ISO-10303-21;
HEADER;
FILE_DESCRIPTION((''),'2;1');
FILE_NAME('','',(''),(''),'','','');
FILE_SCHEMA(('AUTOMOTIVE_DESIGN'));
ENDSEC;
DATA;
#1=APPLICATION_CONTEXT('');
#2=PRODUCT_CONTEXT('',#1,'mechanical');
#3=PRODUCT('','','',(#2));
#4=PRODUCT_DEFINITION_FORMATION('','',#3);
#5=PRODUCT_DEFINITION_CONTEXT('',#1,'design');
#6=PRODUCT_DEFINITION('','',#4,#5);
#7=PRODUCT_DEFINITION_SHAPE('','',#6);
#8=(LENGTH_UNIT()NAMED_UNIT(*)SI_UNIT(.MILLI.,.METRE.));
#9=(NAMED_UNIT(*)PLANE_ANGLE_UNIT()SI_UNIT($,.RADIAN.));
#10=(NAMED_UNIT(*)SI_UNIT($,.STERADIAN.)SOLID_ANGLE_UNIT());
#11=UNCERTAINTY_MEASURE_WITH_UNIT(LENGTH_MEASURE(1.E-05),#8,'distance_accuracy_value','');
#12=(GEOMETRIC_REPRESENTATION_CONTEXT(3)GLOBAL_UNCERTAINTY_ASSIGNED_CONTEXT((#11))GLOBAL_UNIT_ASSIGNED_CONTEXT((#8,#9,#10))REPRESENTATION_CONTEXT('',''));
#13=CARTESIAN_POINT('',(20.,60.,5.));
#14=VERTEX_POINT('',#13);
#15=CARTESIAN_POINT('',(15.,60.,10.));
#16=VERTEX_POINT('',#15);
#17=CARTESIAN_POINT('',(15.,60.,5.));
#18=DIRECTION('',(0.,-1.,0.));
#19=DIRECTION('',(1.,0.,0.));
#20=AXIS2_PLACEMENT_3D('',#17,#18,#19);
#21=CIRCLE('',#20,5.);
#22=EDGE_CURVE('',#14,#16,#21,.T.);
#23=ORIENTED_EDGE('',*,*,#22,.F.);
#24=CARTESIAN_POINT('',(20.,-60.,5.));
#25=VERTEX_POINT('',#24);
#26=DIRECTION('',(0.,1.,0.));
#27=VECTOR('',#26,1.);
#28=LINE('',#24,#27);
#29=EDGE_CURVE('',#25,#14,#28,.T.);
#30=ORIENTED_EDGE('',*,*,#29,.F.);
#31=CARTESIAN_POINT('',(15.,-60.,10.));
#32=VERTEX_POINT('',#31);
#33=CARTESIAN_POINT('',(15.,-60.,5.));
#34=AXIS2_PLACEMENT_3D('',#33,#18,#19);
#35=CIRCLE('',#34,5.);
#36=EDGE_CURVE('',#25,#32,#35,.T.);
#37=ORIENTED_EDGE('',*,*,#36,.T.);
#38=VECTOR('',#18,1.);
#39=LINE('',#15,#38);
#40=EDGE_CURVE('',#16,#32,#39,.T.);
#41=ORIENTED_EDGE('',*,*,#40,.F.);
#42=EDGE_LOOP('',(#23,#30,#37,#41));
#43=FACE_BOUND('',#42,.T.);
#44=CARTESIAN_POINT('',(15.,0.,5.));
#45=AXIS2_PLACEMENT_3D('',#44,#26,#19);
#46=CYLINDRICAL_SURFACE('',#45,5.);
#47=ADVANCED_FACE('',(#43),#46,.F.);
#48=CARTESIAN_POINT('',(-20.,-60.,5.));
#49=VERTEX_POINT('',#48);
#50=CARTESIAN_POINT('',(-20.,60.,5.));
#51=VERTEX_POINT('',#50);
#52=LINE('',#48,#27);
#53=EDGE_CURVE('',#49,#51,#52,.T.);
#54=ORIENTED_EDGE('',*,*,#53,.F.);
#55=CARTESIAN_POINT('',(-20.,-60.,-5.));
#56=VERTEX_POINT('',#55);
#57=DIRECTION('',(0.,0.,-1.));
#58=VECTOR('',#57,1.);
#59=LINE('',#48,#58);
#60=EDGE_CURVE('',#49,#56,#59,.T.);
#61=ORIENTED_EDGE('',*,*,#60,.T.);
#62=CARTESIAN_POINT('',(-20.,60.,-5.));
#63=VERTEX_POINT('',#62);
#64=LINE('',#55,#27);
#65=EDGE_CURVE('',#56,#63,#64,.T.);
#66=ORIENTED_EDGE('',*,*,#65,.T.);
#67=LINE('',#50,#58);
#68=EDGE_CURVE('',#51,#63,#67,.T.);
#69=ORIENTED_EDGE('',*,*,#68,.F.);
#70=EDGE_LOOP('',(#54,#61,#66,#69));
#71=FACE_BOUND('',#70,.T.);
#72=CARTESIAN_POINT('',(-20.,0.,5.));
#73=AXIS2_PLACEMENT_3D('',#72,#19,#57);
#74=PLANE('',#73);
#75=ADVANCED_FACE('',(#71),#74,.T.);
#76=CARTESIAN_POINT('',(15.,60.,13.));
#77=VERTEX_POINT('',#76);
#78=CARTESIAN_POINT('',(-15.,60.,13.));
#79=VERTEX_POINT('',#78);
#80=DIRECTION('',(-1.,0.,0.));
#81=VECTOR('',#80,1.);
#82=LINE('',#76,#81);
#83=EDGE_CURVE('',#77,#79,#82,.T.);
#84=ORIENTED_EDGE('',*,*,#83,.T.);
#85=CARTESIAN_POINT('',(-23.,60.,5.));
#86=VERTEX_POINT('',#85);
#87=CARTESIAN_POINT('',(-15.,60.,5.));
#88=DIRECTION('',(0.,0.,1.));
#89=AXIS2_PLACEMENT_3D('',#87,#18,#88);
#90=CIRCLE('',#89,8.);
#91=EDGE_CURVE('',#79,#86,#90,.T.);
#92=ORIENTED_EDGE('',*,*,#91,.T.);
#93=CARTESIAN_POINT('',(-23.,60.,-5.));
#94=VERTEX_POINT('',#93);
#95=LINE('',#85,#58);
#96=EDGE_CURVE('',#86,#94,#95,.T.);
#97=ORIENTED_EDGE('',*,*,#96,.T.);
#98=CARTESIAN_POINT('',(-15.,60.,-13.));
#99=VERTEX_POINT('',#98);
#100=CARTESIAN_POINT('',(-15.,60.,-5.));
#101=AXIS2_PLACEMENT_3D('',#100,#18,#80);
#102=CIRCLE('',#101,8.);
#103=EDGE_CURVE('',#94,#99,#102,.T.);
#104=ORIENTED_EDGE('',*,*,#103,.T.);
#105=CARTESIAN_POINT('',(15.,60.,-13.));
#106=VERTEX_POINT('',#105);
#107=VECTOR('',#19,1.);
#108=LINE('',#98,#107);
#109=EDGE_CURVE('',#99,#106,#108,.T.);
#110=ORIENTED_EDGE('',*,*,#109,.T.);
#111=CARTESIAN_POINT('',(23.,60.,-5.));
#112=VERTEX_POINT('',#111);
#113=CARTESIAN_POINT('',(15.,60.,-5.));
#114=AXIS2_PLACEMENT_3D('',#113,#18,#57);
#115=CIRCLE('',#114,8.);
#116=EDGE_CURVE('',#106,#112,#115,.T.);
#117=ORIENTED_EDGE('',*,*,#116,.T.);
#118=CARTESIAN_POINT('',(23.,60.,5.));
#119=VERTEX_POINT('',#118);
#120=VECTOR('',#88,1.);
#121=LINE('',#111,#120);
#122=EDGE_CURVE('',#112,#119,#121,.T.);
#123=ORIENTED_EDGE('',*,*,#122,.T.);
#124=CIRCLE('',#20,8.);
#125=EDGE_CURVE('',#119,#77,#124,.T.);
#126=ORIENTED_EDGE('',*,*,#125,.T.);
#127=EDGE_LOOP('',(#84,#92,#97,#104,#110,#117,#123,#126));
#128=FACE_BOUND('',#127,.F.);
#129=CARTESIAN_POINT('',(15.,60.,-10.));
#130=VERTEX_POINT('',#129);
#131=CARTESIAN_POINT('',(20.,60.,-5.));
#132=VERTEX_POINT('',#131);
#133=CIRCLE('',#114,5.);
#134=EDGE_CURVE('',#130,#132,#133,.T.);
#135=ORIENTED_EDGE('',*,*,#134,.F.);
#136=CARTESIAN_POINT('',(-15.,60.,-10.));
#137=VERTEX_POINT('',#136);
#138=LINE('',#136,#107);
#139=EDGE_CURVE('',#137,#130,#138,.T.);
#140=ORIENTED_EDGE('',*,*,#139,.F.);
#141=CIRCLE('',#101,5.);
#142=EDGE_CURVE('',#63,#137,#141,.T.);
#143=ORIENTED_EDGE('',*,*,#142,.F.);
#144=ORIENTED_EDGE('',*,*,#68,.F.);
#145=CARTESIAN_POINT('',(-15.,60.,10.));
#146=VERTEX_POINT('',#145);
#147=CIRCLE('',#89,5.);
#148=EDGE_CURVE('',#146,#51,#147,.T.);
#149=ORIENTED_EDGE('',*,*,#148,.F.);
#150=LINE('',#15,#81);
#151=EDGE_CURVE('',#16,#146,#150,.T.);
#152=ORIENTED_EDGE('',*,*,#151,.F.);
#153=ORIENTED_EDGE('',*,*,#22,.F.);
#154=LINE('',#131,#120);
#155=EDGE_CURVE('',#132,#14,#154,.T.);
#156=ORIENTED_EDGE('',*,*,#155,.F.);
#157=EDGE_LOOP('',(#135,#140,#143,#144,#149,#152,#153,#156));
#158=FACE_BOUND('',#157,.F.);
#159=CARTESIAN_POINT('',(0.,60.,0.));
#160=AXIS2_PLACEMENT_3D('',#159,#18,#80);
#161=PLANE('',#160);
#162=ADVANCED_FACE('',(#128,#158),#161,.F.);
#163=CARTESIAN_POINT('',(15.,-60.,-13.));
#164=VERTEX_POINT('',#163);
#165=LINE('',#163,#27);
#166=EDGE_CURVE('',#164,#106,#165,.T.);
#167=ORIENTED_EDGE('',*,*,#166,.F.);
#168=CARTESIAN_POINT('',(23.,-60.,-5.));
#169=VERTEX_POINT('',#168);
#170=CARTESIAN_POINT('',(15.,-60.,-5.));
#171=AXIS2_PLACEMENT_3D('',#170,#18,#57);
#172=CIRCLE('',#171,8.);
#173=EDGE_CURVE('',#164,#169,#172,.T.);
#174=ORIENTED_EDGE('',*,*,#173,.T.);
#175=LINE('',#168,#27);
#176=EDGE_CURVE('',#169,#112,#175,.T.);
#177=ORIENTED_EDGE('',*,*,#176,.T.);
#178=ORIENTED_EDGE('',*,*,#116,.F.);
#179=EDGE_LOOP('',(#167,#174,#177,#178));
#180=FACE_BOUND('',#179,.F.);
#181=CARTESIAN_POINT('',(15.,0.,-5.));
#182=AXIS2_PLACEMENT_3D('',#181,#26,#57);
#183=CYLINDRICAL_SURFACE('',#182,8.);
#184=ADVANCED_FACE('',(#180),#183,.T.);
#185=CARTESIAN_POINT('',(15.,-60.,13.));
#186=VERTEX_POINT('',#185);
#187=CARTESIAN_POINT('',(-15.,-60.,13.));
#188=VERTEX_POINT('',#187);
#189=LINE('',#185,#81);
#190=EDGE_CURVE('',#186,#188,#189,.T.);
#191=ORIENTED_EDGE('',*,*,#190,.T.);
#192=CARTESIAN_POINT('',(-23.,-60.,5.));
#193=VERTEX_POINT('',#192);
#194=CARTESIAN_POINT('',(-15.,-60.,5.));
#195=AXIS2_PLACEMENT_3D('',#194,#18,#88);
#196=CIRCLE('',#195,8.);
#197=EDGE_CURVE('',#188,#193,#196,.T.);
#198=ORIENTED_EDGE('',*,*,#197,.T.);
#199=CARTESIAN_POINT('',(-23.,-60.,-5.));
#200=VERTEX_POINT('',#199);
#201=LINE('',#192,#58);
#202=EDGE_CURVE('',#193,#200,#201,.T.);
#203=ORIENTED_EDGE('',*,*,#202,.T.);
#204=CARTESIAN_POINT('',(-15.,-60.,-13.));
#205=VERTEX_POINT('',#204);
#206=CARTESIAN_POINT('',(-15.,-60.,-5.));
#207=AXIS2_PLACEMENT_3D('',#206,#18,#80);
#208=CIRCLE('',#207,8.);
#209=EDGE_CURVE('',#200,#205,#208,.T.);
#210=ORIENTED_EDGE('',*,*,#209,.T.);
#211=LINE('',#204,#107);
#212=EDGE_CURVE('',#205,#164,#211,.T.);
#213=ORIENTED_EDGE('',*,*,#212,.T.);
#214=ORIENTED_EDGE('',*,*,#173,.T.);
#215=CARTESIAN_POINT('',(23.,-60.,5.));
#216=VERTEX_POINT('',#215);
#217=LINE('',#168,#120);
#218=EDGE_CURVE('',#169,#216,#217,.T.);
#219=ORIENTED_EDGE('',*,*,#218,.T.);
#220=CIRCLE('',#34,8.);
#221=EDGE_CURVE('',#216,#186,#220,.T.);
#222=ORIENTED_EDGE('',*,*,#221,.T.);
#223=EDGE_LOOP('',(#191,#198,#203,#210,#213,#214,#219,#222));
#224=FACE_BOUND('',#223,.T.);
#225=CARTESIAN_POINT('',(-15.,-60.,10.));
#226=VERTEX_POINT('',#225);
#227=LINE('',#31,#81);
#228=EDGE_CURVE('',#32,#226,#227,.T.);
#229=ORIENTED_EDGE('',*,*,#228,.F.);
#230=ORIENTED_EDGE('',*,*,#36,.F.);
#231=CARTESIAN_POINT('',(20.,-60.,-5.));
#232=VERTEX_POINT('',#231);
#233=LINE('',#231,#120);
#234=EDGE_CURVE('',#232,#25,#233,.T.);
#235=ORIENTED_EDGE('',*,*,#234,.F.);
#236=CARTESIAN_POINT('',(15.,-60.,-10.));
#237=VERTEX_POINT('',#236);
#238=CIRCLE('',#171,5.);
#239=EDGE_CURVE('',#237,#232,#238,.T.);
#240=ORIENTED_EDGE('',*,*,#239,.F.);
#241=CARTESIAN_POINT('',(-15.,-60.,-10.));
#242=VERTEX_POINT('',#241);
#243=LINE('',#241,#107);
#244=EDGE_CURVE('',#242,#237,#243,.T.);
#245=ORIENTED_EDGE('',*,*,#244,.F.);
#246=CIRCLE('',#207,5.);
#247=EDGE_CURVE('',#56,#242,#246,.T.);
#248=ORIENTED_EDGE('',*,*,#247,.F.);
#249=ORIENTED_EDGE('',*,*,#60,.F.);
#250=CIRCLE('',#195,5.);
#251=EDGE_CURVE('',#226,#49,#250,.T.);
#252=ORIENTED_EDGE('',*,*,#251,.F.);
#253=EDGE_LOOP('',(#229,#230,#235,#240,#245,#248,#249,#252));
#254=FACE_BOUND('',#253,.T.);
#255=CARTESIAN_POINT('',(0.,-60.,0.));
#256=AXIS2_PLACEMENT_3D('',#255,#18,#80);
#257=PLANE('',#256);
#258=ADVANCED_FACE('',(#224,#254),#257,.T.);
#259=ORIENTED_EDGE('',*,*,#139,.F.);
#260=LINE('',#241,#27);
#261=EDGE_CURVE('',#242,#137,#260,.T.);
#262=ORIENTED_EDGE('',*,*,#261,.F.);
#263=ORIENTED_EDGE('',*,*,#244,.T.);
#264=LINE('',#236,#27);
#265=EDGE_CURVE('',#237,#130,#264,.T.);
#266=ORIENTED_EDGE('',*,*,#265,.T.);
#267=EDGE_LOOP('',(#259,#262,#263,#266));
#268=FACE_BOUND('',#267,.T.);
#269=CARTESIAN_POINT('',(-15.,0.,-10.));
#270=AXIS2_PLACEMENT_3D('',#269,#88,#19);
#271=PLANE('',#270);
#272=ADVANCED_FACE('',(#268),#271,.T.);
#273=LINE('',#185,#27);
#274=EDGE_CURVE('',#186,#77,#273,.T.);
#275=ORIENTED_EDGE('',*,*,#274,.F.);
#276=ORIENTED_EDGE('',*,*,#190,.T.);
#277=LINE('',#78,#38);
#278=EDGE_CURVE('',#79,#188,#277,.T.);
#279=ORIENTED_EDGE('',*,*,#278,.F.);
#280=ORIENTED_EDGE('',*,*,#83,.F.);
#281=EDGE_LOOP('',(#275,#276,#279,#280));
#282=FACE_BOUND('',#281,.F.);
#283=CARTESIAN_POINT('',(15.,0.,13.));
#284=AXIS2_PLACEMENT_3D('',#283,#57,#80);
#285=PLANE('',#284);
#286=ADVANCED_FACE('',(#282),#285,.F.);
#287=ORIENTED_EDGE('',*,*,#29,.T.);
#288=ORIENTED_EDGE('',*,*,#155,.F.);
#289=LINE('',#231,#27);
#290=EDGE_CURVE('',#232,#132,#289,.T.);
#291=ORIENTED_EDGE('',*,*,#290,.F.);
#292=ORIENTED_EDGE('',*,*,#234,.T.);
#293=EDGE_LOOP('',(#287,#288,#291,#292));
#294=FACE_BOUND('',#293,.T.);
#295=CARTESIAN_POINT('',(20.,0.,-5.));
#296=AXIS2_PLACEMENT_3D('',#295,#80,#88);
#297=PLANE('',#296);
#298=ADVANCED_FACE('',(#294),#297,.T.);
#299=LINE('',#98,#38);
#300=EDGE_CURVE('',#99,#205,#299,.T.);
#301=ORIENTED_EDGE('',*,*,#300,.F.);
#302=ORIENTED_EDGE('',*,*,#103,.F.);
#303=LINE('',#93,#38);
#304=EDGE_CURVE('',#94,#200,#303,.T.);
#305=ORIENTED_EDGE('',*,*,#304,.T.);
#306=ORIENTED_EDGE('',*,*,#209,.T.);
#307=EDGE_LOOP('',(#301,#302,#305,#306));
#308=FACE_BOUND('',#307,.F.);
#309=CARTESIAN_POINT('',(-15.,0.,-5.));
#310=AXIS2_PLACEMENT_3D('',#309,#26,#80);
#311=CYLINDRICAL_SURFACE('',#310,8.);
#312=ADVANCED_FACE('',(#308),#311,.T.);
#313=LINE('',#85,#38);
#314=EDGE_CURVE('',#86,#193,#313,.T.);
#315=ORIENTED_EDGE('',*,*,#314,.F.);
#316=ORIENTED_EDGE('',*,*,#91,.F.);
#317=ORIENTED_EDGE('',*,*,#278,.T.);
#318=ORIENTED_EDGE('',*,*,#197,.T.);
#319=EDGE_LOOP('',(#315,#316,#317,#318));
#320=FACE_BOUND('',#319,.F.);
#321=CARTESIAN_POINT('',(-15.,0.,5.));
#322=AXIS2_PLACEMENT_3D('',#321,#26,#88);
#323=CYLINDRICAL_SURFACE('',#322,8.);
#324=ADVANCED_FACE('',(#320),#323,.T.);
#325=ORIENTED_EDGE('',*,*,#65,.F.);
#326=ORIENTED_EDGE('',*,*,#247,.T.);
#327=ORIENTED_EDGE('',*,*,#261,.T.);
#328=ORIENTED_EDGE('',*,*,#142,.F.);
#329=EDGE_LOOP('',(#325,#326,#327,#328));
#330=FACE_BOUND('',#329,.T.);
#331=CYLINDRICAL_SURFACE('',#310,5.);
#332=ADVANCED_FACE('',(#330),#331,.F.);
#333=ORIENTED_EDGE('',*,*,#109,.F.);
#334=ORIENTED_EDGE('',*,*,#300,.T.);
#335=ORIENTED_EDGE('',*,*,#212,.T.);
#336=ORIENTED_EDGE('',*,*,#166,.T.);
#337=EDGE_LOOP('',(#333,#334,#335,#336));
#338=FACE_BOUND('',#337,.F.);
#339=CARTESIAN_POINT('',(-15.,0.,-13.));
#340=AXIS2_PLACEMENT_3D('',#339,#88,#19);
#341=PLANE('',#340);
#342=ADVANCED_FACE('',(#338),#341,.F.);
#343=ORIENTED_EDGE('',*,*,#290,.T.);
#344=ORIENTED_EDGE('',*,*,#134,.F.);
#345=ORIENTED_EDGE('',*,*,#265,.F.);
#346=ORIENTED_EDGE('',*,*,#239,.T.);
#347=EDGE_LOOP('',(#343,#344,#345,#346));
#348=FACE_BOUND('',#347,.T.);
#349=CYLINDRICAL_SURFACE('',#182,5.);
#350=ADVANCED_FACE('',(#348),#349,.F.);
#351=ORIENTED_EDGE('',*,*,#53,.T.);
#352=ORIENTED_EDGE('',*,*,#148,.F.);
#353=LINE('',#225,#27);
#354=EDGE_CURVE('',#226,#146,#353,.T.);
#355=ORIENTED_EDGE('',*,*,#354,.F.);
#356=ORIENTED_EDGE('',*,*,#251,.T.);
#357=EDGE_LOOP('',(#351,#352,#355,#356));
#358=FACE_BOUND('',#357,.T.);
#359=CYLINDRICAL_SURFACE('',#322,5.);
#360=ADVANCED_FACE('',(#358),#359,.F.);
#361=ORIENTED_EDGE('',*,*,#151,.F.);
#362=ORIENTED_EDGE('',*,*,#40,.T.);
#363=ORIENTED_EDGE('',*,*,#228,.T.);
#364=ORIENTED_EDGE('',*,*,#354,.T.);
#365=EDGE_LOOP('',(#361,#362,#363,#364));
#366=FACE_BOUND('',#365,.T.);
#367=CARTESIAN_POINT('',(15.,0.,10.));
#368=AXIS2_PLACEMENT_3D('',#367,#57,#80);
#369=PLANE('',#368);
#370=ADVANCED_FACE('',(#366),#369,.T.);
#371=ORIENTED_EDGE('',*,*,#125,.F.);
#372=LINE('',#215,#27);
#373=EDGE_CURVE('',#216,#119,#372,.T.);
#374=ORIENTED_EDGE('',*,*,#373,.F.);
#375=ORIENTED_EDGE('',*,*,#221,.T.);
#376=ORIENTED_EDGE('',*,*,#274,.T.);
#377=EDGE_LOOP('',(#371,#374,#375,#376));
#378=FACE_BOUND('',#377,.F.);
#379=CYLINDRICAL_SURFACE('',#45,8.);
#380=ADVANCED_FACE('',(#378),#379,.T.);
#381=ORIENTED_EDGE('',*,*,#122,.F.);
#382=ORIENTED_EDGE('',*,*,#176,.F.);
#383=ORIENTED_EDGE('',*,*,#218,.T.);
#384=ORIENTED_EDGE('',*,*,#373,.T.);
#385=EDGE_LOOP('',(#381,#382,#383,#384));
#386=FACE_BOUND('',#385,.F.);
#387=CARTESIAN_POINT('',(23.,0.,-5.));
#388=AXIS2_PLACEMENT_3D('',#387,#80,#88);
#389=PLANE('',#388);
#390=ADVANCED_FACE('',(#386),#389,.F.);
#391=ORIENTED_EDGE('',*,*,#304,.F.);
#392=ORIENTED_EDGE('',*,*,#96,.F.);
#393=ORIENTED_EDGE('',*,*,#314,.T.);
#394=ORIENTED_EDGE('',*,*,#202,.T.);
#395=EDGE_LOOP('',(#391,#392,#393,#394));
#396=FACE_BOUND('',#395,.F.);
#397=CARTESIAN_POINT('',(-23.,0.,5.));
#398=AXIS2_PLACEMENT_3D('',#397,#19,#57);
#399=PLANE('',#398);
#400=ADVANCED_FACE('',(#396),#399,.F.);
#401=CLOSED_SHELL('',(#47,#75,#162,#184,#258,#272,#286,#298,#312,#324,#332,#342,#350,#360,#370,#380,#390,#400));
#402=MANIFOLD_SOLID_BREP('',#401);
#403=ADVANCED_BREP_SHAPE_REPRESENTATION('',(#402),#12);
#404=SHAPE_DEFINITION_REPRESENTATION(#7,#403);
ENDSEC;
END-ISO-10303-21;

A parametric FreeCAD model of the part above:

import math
import FreeCAD as App
import Part
import Sketcher

V = App.Vector

doc = App.newDocument("Part")
body = doc.addObject("PartDesign::Body", "Body")

sketch1 = body.newObject("Sketcher::SketchObject", "Sketch")
sketch1.AttachmentSupport = (doc.getObject("XZ_Plane"), [""])
sketch1.MapMode = "FlatFace"
sketch1.addGeometry([
    Part.LineSegment(V(-15, 13, 0), V(15, 13, 0)),
    Part.ArcOfCircle(Part.Circle(V(15, 5, 0), V(0, 0, 1), 8), math.radians(0), math.radians(90)),
    Part.LineSegment(V(23, 5, 0), V(23, -5, 0)),
    Part.ArcOfCircle(Part.Circle(V(15, -5, 0), V(0, 0, 1), 8), math.radians(-90), math.radians(0)),
    Part.LineSegment(V(15, -13, 0), V(-15, -13, 0)),
    Part.ArcOfCircle(Part.Circle(V(-15, -5, 0), V(0, 0, 1), 8), math.radians(-180), math.radians(-90)),
    Part.LineSegment(V(-23, -5, 0), V(-23, 5, 0)),
    Part.ArcOfCircle(Part.Circle(V(-15, 5, 0), V(0, 0, 1), 8), math.radians(90), math.radians(180)),
    Part.LineSegment(V(15, 10, 0), V(-15, 10, 0)),
    Part.ArcOfCircle(Part.Circle(V(-15, 5, 0), V(0, 0, 1), 5), math.radians(90), math.radians(180)),
    Part.LineSegment(V(-20, 5, 0), V(-20, -5, 0)),
    Part.ArcOfCircle(Part.Circle(V(-15, -5, 0), V(0, 0, 1), 5), math.radians(180), math.radians(270)),
    Part.LineSegment(V(-15, -10, 0), V(15, -10, 0)),
    Part.ArcOfCircle(Part.Circle(V(15, -5, 0), V(0, 0, 1), 5), math.radians(-90), math.radians(0)),
    Part.LineSegment(V(20, -5, 0), V(20, 5, 0)),
    Part.ArcOfCircle(Part.Circle(V(15, 5, 0), V(0, 0, 1), 5), math.radians(0), math.radians(90)),
], False)
sketch1.addConstraint([
    Sketcher.Constraint("Tangent", 0, 2, 1, 2),
    Sketcher.Constraint("Tangent", 1, 1, 2, 1),
    Sketcher.Constraint("Tangent", 2, 2, 3, 2),
    Sketcher.Constraint("Tangent", 3, 1, 4, 1),
    Sketcher.Constraint("Tangent", 4, 2, 5, 2),
    Sketcher.Constraint("Tangent", 5, 1, 6, 1),
    Sketcher.Constraint("Tangent", 6, 2, 7, 2),
    Sketcher.Constraint("Tangent", 7, 1, 0, 1),
    Sketcher.Constraint("Tangent", 8, 2, 9, 1),
    Sketcher.Constraint("Tangent", 9, 2, 10, 1),
    Sketcher.Constraint("Tangent", 10, 2, 11, 1),
    Sketcher.Constraint("Tangent", 11, 2, 12, 1),
    Sketcher.Constraint("Tangent", 12, 2, 13, 1),
    Sketcher.Constraint("Tangent", 13, 2, 14, 1),
    Sketcher.Constraint("Tangent", 14, 2, 15, 1),
    Sketcher.Constraint("Tangent", 15, 2, 8, 1),
    Sketcher.Constraint("Horizontal", 0),
    Sketcher.Constraint("Vertical", 2),
    Sketcher.Constraint("Horizontal", 4),
    Sketcher.Constraint("Vertical", 6),
    Sketcher.Constraint("Horizontal", 8),
    Sketcher.Constraint("Vertical", 10),
    Sketcher.Constraint("Horizontal", 12),
    Sketcher.Constraint("Vertical", 14),
    Sketcher.Constraint("Coincident", 9, 3, 7, 3),
    Sketcher.Constraint("Coincident", 11, 3, 5, 3),
    Sketcher.Constraint("Coincident", 13, 3, 3, 3),
    Sketcher.Constraint("Equal", 1, 3),
    Sketcher.Constraint("Equal", 3, 5),
    Sketcher.Constraint("Equal", 5, 7),
    Sketcher.Constraint("Equal", 13, 15),
    Sketcher.Constraint("Symmetric", 1, 3, 5, 3, -1, 1),
    Sketcher.Constraint("Radius", 1, 8.0),
    Sketcher.Constraint("Radius", 9, 5.0),
    Sketcher.Constraint("DistanceX", 0, 1, 0, 2, 30.0),
    Sketcher.Constraint("DistanceY", 2, 2, 2, 1, 10.0),
])
pad1 = body.newObject("PartDesign::Pad", "Pad")
pad1.Profile = sketch1
pad1.Length = 120
pad1.Midplane = True

doc.recompute()
